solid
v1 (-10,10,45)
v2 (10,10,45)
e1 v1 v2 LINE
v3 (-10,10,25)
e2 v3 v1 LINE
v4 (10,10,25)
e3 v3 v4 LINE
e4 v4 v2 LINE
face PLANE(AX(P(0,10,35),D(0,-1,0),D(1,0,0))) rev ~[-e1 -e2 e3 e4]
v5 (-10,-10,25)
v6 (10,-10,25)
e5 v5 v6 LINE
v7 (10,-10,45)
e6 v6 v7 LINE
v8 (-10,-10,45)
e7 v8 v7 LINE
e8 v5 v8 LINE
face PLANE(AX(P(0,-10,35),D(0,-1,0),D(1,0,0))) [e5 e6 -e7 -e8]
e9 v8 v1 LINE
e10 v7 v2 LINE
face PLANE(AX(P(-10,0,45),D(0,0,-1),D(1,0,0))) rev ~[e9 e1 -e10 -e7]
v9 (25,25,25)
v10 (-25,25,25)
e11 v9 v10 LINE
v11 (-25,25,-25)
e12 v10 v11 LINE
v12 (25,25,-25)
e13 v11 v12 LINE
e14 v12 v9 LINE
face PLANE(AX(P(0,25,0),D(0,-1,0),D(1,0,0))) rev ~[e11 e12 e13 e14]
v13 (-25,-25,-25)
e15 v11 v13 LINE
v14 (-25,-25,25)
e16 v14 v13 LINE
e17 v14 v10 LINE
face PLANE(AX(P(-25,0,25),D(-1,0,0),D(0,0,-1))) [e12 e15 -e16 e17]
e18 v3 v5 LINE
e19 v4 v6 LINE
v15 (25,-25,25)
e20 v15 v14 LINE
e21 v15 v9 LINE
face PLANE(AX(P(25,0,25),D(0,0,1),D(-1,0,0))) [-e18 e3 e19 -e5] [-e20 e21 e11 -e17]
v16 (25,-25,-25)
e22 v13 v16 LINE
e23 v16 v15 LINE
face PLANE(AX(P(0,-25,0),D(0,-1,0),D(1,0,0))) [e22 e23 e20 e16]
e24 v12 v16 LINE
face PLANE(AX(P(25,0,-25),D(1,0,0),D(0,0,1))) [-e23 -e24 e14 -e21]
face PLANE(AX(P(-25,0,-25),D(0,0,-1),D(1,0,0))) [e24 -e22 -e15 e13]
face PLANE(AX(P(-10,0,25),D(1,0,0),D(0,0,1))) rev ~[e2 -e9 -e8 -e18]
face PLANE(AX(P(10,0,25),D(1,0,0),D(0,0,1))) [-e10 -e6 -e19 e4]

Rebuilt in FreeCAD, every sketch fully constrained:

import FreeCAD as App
import Part
import Sketcher
Q = App.Units.Quantity

doc = App.newDocument("Part")
params = doc.addObject("Spreadsheet::Sheet", "Params")
for row, (alias, value) in enumerate([
    ("sketch1_width", "50 mm"),
    ("pad1_length", "50 mm"),
    ("sketch2_width", "20 mm"),
    ("pad2_length", "20 mm"),
], start=1):
    params.set(f"A{row}", alias)
    params.set(f"B{row}", "=" + value)
    params.setAlias(f"B{row}", alias)

body = doc.addObject("PartDesign::Body", "Body")

sketch1 = body.newObject("Sketcher::SketchObject", "Sketch")
sketch1.AttachmentSupport = (doc.getObject("XZ_Plane"), [""])
sketch1.MapMode = "FlatFace"
sketch1.addGeometry([
    Part.LineSegment(App.Vector(-25, 25, 0), App.Vector(-25, -25, 0)),
    Part.LineSegment(App.Vector(-25, -25, 0), App.Vector(25, -25, 0)),
    Part.LineSegment(App.Vector(25, -25, 0), App.Vector(25, 25, 0)),
    Part.LineSegment(App.Vector(25, 25, 0), App.Vector(-25, 25, 0)),
], False)
sketch1.addConstraint([
    Sketcher.Constraint("Coincident", 0, 2, 1, 1),
    Sketcher.Constraint("Coincident", 1, 2, 2, 1),
    Sketcher.Constraint("Coincident", 2, 2, 3, 1),
    Sketcher.Constraint("Coincident", 3, 2, 0, 1),
    Sketcher.Constraint("Vertical", 0),
    Sketcher.Constraint("Horizontal", 1),
    Sketcher.Constraint("Vertical", 2),
    Sketcher.Constraint("Horizontal", 3),
    Sketcher.Constraint("Symmetric", 0, 2, 2, 2, -1, 1),
    Sketcher.Constraint("Equal", 3, 0),
    Sketcher.Constraint("DistanceX", 1, 1, 1, 2, Q("50 mm")),
])
sketch1.setExpression("Constraints[10]", "Params.sketch1_width")
pad1 = body.newObject("PartDesign::Pad", "Pad")
pad1.Profile = sketch1
pad1.setExpression("Length", "Params.pad1_length")
pad1.Midplane = True

sketch2 = body.newObject("Sketcher::SketchObject", "Sketch001")
sketch2.AttachmentSupport = (doc.getObject("XZ_Plane"), [""])
sketch2.MapMode = "FlatFace"
sketch2.addGeometry([
    Part.LineSegment(App.Vector(-10, 45, 0), App.Vector(-10, 25, 0)),
    Part.LineSegment(App.Vector(-10, 25, 0), App.Vector(10, 25, 0)),
    Part.LineSegment(App.Vector(10, 25, 0), App.Vector(10, 45, 0)),
    Part.LineSegment(App.Vector(10, 45, 0), App.Vector(-10, 45, 0)),
], False)
sketch2.addConstraint([
    Sketcher.Constraint("Coincident", 0, 2, 1, 1),
    Sketcher.Constraint("Coincident", 1, 2, 2, 1),
    Sketcher.Constraint("Coincident", 2, 2, 3, 1),
    Sketcher.Constraint("Coincident", 3, 2, 0, 1),
    Sketcher.Constraint("Vertical", 0),
    Sketcher.Constraint("Horizontal", 1),
    Sketcher.Constraint("Vertical", 2),
    Sketcher.Constraint("Horizontal", 3),
    Sketcher.Constraint("Equal", 3, 0),
    Sketcher.Constraint("DistanceX", 1, 1, 1, 2, Q("20 mm")),
    Sketcher.Constraint("DistanceX", 0, 2, -1, 1, Q("10 mm")),
    Sketcher.Constraint("DistanceY", -1, 1, 0, 2, Q("25 mm")),
])
sketch2.setExpression("Constraints[9]", "Params.sketch2_width")
pad2 = body.newObject("PartDesign::Pad", "Pad001")
pad2.Profile = sketch2
pad2.setExpression("Length", "Params.pad2_length")
pad2.Midplane = True

doc.recompute()
